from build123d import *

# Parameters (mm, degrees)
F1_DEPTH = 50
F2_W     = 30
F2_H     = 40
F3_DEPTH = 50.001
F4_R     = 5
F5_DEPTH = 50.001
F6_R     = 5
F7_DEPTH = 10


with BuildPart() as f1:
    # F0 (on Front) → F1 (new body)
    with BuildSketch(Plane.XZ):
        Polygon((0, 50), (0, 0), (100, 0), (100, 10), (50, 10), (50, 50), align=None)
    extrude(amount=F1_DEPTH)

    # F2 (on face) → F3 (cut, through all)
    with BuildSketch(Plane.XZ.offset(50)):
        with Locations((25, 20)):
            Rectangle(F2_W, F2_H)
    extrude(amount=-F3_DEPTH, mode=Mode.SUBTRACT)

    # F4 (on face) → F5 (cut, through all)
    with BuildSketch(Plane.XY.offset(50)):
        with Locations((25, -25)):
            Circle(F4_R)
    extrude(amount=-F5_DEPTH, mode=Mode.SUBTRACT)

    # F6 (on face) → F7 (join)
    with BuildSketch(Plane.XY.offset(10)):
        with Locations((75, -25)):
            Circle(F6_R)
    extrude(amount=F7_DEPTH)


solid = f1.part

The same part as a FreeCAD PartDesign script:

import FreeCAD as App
import Part
import Sketcher
Q = App.Units.Quantity

doc = App.newDocument("Part")
body = doc.addObject("PartDesign::Body", "Body")

# Sketch on XZ plane
sketch1 = body.newObject("Sketcher::SketchObject", "Sketch")
sketch1.AttachmentSupport = (doc.getObject("XZ_Plane"), [""])
sketch1.MapMode = "FlatFace"
sketch1.addGeometry([
    Part.LineSegment(App.Vector(0, 50, 0), App.Vector(0, 0, 0)),  # 0
    Part.LineSegment(App.Vector(0, 0, 0), App.Vector(100, 0, 0)),  # 1
    Part.LineSegment(App.Vector(100, 0, 0), App.Vector(100, 10, 0)),  # 2
    Part.LineSegment(App.Vector(100, 10, 0), App.Vector(50, 10, 0)),  # 3
    Part.LineSegment(App.Vector(50, 10, 0), App.Vector(50, 50, 0)),  # 4
    Part.LineSegment(App.Vector(50, 50, 0), App.Vector(0, 50, 0)),  # 5
], False)
sketch1.addConstraint([
    Sketcher.Constraint("Coincident", 0, 2, 1, 1),
    Sketcher.Constraint("Coincident", 1, 2, 2, 1),
    Sketcher.Constraint("Coincident", 2, 2, 3, 1),
    Sketcher.Constraint("Coincident", 3, 2, 4, 1),
    Sketcher.Constraint("Coincident", 4, 2, 5, 1),
    Sketcher.Constraint("Coincident", 5, 2, 0, 1),
    Sketcher.Constraint("Vertical", 0),
    Sketcher.Constraint("Horizontal", 1),
    Sketcher.Constraint("Vertical", 2),
    Sketcher.Constraint("Horizontal", 3),
    Sketcher.Constraint("Vertical", 4),
    Sketcher.Constraint("Horizontal", 5),
    Sketcher.Constraint("Coincident", 0, 2, -1, 1),
    Sketcher.Constraint("Equal", 3, 5),
    Sketcher.Constraint("Equal", 5, 0),
    Sketcher.Constraint("DistanceX", 1, 1, 1, 2, Q("100 mm")),
    Sketcher.Constraint("DistanceY", 2, 1, 2, 2, Q("10 mm")),
])
pad1 = body.newObject("PartDesign::Pad", "Pad")
pad1.Profile = sketch1
pad1.Length = 50

# Sketch on XZ plane
sketch2 = body.newObject("Sketcher::SketchObject", "Sketch001")
sketch2.AttachmentSupport = (doc.getObject("XZ_Plane"), [""])
sketch2.MapMode = "FlatFace"
sketch2.AttachmentOffset = App.Placement(App.Vector(0, 0, 50), App.Rotation())
sketch2.addGeometry([
    Part.LineSegment(App.Vector(10, 40, 0), App.Vector(10, 0, 0)),
    Part.LineSegment(App.Vector(10, 0, 0), App.Vector(40, 0, 0)),
    Part.LineSegment(App.Vector(40, 0, 0), App.Vector(40, 40, 0)),
    Part.LineSegment(App.Vector(40, 40, 0), App.Vector(10, 40, 0)),
], False)
sketch2.addConstraint([
    Sketcher.Constraint("Coincident", 0, 2, 1, 1),
    Sketcher.Constraint("Coincident", 1, 2, 2, 1),
    Sketcher.Constraint("Coincident", 2, 2, 3, 1),
    Sketcher.Constraint("Coincident", 3, 2, 0, 1),
    Sketcher.Constraint("Vertical", 0),
    Sketcher.Constraint("Horizontal", 1),
    Sketcher.Constraint("Vertical", 2),
    Sketcher.Constraint("Horizontal", 3),
    Sketcher.Constraint("PointOnObject", 0, 2, -1),
    Sketcher.Constraint("DistanceX", 1, 1, 1, 2, Q("30 mm")),
    Sketcher.Constraint("DistanceY", 0, 2, 0, 1, Q("40 mm")),
    Sketcher.Constraint("DistanceX", -1, 1, 0, 2, Q("10 mm")),
])
pocket1 = body.newObject("PartDesign::Pocket", "Pocket")
pocket1.Profile = sketch2
pocket1.Type = "ThroughAll"

# Sketch on XY plane
sketch3 = body.newObject("Sketcher::SketchObject", "Sketch002")
sketch3.AttachmentSupport = (doc.getObject("XY_Plane"), [""])
sketch3.MapMode = "FlatFace"
sketch3.AttachmentOffset = App.Placement(App.Vector(0, 0, 50), App.Rotation())
sketch3.addGeometry(Part.Circle(App.Vector(25, -25, 0), App.Vector(0, 0, 1), 5), False)
sketch3.addConstraint([
    Sketcher.Constraint("Diameter", 0, Q("10 mm")),
    Sketcher.Constraint("DistanceX", -1, 1, 0, 3, Q("25 mm")),
    Sketcher.Constraint("DistanceY", 0, 3, -1, 1, Q("25 mm")),
])
pocket2 = body.newObject("PartDesign::Pocket", "Pocket001")
pocket2.Profile = sketch3
pocket2.Type = "ThroughAll"

# Sketch on XY plane
sketch4 = body.newObject("Sketcher::SketchObject", "Sketch003")
sketch4.AttachmentSupport = (doc.getObject("XY_Plane"), [""])
sketch4.MapMode = "FlatFace"
sketch4.AttachmentOffset = App.Placement(App.Vector(0, 0, 10), App.Rotation())
sketch4.addGeometry(Part.Circle(App.Vector(75, -25, 0), App.Vector(0, 0, 1), 5), False)
sketch4.addConstraint([
    Sketcher.Constraint("Diameter", 0, Q("10 mm")),
    Sketcher.Constraint("DistanceX", -1, 1, 0, 3, Q("75 mm")),
    Sketcher.Constraint("DistanceY", 0, 3, -1, 1, Q("25 mm")),
])
pad2 = body.newObject("PartDesign::Pad", "Pad001")
pad2.Profile = sketch4
pad2.Length = 10

doc.recompute()
